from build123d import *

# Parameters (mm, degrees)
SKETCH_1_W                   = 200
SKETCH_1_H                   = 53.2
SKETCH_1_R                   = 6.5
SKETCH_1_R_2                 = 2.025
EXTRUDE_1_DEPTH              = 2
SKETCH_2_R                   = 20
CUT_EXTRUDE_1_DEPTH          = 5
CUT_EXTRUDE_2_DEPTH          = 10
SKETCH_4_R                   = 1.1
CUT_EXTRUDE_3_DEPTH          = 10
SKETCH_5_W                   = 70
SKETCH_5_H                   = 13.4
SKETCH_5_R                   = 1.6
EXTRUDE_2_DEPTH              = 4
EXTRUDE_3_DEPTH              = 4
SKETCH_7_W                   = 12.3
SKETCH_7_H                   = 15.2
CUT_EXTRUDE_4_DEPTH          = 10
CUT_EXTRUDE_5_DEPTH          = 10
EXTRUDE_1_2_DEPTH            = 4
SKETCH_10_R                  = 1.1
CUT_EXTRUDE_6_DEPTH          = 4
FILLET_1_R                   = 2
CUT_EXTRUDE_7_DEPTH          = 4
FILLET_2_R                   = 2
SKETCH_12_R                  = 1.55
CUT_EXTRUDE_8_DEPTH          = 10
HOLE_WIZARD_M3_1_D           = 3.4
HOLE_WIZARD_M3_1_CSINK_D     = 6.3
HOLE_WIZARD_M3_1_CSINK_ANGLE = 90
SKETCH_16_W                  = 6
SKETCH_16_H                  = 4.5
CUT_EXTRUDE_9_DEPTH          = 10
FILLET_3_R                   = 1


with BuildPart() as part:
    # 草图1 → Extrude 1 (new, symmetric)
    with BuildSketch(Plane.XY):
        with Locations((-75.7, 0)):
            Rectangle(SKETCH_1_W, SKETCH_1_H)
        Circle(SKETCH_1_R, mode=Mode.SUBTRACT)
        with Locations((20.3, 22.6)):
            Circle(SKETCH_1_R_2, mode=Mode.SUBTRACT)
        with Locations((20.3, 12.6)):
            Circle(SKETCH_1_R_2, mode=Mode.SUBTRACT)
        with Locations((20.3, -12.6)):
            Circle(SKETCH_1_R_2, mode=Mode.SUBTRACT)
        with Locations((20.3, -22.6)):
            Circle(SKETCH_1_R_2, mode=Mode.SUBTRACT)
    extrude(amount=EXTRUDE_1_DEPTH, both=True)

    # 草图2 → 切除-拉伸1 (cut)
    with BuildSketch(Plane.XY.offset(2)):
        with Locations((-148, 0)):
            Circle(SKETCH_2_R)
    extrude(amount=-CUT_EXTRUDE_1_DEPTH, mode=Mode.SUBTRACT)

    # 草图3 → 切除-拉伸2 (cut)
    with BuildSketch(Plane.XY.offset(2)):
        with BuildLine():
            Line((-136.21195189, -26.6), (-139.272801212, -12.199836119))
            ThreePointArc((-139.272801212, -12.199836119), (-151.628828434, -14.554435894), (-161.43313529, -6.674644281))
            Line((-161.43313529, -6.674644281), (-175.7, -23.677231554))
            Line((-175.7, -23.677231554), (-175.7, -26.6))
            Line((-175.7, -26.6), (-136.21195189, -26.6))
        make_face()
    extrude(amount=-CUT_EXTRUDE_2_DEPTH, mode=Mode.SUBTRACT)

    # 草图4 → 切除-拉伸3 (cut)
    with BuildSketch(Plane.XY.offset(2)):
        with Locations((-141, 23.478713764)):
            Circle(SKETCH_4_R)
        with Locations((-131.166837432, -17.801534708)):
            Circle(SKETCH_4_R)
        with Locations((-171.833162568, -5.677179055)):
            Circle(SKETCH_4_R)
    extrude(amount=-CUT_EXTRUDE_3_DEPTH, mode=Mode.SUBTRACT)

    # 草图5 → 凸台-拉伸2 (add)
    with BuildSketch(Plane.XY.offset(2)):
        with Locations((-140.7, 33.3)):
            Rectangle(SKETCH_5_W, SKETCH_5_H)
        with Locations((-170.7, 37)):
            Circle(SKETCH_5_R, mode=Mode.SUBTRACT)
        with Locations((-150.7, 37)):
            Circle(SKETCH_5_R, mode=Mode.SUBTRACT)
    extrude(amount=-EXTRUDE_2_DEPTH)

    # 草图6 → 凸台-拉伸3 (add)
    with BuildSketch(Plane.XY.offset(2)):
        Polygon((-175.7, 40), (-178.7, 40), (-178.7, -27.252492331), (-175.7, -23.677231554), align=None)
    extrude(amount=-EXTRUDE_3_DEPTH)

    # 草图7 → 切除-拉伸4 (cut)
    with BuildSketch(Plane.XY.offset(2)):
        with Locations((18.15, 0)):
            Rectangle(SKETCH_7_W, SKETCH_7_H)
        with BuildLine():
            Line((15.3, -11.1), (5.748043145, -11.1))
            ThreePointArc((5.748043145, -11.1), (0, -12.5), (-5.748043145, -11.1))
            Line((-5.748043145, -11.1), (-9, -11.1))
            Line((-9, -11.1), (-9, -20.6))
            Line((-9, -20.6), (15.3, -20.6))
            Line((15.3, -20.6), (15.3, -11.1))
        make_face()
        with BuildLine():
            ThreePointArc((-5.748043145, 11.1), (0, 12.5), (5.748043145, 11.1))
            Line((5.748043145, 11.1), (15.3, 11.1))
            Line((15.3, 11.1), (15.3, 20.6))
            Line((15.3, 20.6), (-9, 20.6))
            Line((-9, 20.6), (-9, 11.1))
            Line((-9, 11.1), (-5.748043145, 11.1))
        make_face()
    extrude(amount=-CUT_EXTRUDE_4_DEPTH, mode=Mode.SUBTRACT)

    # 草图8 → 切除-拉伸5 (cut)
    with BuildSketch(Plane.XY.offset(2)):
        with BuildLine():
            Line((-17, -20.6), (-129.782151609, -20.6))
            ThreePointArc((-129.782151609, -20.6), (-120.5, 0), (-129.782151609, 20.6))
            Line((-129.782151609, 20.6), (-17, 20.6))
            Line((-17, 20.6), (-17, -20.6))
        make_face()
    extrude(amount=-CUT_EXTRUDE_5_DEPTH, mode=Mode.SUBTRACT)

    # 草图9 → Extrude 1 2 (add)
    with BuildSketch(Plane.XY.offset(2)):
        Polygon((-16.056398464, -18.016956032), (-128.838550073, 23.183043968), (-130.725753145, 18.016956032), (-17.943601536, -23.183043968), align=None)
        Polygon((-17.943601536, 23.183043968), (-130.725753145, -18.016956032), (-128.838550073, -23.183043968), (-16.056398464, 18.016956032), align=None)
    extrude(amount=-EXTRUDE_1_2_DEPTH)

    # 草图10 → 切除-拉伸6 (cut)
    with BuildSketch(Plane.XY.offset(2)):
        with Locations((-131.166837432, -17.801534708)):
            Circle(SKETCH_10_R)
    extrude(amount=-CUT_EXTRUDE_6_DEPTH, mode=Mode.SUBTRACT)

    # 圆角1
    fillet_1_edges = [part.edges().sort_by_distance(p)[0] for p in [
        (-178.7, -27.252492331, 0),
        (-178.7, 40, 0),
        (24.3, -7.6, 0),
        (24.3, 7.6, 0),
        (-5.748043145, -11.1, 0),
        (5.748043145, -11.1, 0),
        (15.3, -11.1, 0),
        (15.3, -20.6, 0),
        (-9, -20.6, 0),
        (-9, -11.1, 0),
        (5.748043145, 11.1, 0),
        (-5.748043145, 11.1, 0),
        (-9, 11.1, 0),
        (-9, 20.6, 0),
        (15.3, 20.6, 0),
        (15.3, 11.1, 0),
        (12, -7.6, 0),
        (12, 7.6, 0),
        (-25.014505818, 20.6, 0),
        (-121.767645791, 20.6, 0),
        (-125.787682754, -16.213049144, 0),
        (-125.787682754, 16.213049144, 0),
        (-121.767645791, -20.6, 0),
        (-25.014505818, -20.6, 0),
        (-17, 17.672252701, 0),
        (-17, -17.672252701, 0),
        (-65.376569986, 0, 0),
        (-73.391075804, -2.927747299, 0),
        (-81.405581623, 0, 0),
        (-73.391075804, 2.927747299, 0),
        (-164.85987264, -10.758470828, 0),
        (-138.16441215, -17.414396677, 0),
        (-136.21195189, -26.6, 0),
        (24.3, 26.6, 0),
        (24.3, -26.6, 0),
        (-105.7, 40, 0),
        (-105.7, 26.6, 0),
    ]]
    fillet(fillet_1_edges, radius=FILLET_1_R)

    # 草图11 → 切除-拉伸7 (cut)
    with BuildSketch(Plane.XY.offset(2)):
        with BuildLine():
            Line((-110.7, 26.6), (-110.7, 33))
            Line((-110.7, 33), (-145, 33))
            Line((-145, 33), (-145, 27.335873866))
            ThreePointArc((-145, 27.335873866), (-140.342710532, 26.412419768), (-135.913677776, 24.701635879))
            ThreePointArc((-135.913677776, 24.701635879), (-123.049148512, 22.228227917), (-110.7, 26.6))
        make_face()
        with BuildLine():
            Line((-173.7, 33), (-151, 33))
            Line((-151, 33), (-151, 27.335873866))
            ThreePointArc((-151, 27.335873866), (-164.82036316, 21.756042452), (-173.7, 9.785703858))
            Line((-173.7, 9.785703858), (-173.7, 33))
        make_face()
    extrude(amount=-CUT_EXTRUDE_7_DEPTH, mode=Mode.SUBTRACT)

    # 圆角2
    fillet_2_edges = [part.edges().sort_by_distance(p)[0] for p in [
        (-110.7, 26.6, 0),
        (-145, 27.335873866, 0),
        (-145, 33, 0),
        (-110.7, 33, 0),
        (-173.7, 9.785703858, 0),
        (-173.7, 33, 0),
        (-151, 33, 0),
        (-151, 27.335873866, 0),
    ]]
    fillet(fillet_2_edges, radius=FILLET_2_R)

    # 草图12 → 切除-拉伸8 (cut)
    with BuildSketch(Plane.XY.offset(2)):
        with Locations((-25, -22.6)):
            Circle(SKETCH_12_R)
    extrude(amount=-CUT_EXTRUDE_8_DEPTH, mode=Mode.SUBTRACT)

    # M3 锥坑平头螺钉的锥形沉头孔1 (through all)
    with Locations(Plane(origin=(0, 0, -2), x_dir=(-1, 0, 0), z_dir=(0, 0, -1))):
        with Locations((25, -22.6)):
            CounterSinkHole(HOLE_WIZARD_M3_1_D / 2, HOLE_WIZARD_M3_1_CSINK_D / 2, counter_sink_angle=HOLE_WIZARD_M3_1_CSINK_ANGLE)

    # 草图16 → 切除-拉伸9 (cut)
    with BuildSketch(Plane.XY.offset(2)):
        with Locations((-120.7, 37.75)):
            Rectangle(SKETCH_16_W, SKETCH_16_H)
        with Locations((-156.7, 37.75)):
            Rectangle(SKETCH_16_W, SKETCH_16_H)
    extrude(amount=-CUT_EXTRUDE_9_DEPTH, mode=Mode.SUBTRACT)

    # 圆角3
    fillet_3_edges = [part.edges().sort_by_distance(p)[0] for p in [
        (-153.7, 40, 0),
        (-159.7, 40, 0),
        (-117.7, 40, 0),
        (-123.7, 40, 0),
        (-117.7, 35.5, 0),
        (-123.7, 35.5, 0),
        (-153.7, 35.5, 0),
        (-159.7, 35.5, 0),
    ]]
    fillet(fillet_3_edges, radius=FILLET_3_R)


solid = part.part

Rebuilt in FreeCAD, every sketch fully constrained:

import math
import FreeCAD as App
import Part
import Sketcher
Q = App.Units.Quantity


def edges_at(feature, points):
    """Names of the edges that pass closest to the given points."""
    edges = feature.Shape.Edges
    near = lambda p: min(range(len(edges)), key=lambda i: edges[i].distToShape(Part.Vertex(*p))[0])
    return sorted({f"Edge{near(p) + 1}" for p in points})


def add_polygon(sketch, points):
    """Adds a closed chain of lines whose ends are joined by coincident constraints."""
    first, n = sketch.GeometryCount, len(points)
    for a, b in zip(points, points[1:] + points[:1]):
        sketch.addGeometry(Part.LineSegment(App.Vector(*a, 0), App.Vector(*b, 0)), False)
    for i in range(n):
        sketch.addConstraint(Sketcher.Constraint("Coincident", first + i, 2, first + (i + 1) % n, 1))

doc = App.newDocument("Part")
body = doc.addObject("PartDesign::Body", "Body")

# Sketch on XY plane
sketch1 = body.newObject("Sketcher::SketchObject", "Sketch")
sketch1.AttachmentSupport = (doc.getObject("XY_Plane"), [""])
sketch1.MapMode = "FlatFace"
add_polygon(sketch1, [(-175.7, 26.6), (-175.7, -26.6), (24.3, -26.6), (24.3, 26.6)])  # lines 0-3
sketch1.addGeometry(Part.Circle(App.Vector(20.3, -22.6, 0), App.Vector(0, 0, 1), 2), False)  # 4
sketch1.addGeometry(Part.Circle(App.Vector(20.3, -12.6, 0), App.Vector(0, 0, 1), 2), False)  # 5
sketch1.addGeometry(Part.Circle(App.Vector(0, 0, 0), App.Vector(0, 0, 1), 6.5), False)  # 6
sketch1.addGeometry(Part.Circle(App.Vector(20.3, 12.6, 0), App.Vector(0, 0, 1), 2), False)  # 7
sketch1.addGeometry(Part.Circle(App.Vector(20.3, 22.6, 0), App.Vector(0, 0, 1), 2), False)  # 8
sketch1.addConstraint(Sketcher.Constraint("Vertical", 0))
sketch1.addConstraint(Sketcher.Constraint("Horizontal", 1))
sketch1.addConstraint(Sketcher.Constraint("Vertical", 2))
sketch1.addConstraint(Sketcher.Constraint("Horizontal", 3))
sketch1.addConstraint(Sketcher.Constraint("Coincident", 6, 3, -1, 1))
sketch1.addConstraint(Sketcher.Constraint("Equal", 4, 5))
sketch1.addConstraint(Sketcher.Constraint("Equal", 5, 7))
sketch1.addConstraint(Sketcher.Constraint("Equal", 7, 8))
sketch1.addConstraint(Sketcher.Constraint("Symmetric", 5, 3, 7, 3, -1))
sketch1.addConstraint(Sketcher.Constraint("Symmetric", 4, 3, 8, 3, -1))
sketch1.addConstraint(Sketcher.Constraint("Vertical", 4, 3, 5, 3))
sketch1.addConstraint(Sketcher.Constraint("Diameter", 6, 13.0))
sketch1.addConstraint(Sketcher.Constraint("Diameter", 4, 4.05))
sketch1.addConstraint(Sketcher.Constraint("DistanceX", 1, 1, 1, 2, 200.0))
sketch1.addConstraint(Sketcher.Constraint("DistanceY", 0, 2, 0, 1, 53.2))
sketch1.addConstraint(Sketcher.Constraint("DistanceY", 4, 3, 5, 3, 10.0))
sketch1.addConstraint(Sketcher.Constraint("DistanceX", 0, 2, 4, 3, 196.0))
sketch1.addConstraint(Sketcher.Constraint("DistanceY", 0, 2, 4, 3, 4.0))
sketch1.addConstraint(Sketcher.Constraint("DistanceY", 8, 3, 2, 2, 4.0))
sketch1.addConstraint(Sketcher.Constraint("DistanceX", -1, 1, 4, 3, 20.3))
pad1 = body.newObject("PartDesign::Pad", "Pad")
pad1.Profile = sketch1
pad1.Length = 4
pad1.Midplane = True

# Sketch on XY plane
sketch2 = body.newObject("Sketcher::SketchObject", "Sketch001")
sketch2.AttachmentSupport = (doc.getObject("XY_Plane"), [""])
sketch2.MapMode = "FlatFace"
sketch2.AttachmentOffset = App.Placement(App.Vector(0, 0, 2), App.Rotation())
sketch2.addGeometry(Part.Circle(App.Vector(-148, 0, 0), App.Vector(0, 0, 1), 20), False)
sketch2.addConstraint(Sketcher.Constraint("PointOnObject", 0, 3, -1))
sketch2.addConstraint(Sketcher.Constraint("Diameter", 0, 40.0))
sketch2.addConstraint(Sketcher.Constraint("DistanceX", 0, 3, -1, 1, 148.0))
pocket1 = body.newObject("PartDesign::Pocket", "Pocket")
pocket1.Profile = sketch2
pocket1.Length = 5

# Sketch on XY plane
sketch3 = body.newObject("Sketcher::SketchObject", "Sketch002")
sketch3.AttachmentSupport = (doc.getObject("XY_Plane"), [""])
sketch3.MapMode = "FlatFace"
sketch3.AttachmentOffset = App.Placement(App.Vector(0, 0, 2), App.Rotation())
sketch3.addGeometry(Part.LineSegment(App.Vector(-136.2, -26.6, 0), App.Vector(-139.3, -12.2, 0)), False)
sketch3.addGeometry(Part.ArcOfCircle(Part.Circle(App.Vector(-148, 0, 0), App.Vector(0, 0, 1), 15), math.radians(-154), math.radians(-54)), False)
sketch3.addGeometry(Part.LineSegment(App.Vector(-161.4, -6.7, 0), App.Vector(-175.7, -23.7, 0)), False)
sketch3.addGeometry(Part.LineSegment(App.Vector(-175.7, -23.7, 0), App.Vector(-175.7, -26.6, 0)), False)
sketch3.addGeometry(Part.LineSegment(App.Vector(-175.7, -26.6, 0), App.Vector(-136.2, -26.6, 0)), False)
sketch3.addConstraint(Sketcher.Constraint("Coincident", 0, 2, 1, 2))
sketch3.addConstraint(Sketcher.Constraint("Coincident", 1, 1, 2, 1))
sketch3.addConstraint(Sketcher.Constraint("Coincident", 2, 2, 3, 1))
sketch3.addConstraint(Sketcher.Constraint("Coincident", 3, 2, 4, 1))
sketch3.addConstraint(Sketcher.Constraint("Coincident", 4, 2, 0, 1))
sketch3.addConstraint(Sketcher.Constraint("Vertical", 3))
sketch3.addConstraint(Sketcher.Constraint("Horizontal", 4))
sketch3.addConstraint(Sketcher.Constraint("PointOnObject", 1, 3, -1))
sketch3.addConstraint(Sketcher.Constraint("Radius", 1, 15.0))
sketch3.addConstraint(Sketcher.Constraint("Angle", 0, Q("102 deg")))
sketch3.addConstraint(Sketcher.Constraint("Angle", 2, Q("-130 deg")))
sketch3.addConstraint(Sketcher.Constraint("DistanceX", 1, 3, -1, 1, 148.0))
sketch3.addConstraint(Sketcher.Constraint("DistanceX", 2, 2, -1, 1, 175.7))
sketch3.addConstraint(Sketcher.Constraint("DistanceY", 3, 2, -1, 1, 26.6))
sketch3.addConstraint(Sketcher.Constraint("Distance", 2, 22.195301))
sketch3.addConstraint(Sketcher.Constraint("DistanceX", 4, 1, 4, 2, 39.488048))
pocket2 = body.newObject("PartDesign::Pocket", "Pocket001")
pocket2.Profile = sketch3
pocket2.Length = 10

# Sketch on XY plane
sketch4 = body.newObject("Sketcher::SketchObject", "Sketch003")
sketch4.AttachmentSupport = (doc.getObject("XY_Plane"), [""])
sketch4.MapMode = "FlatFace"
sketch4.AttachmentOffset = App.Placement(App.Vector(0, 0, 2), App.Rotation())
sketch4.addGeometry(Part.Circle(App.Vector(-141, 23.5, 0), App.Vector(0, 0, 1), 1.1), False)
sketch4.addGeometry(Part.Circle(App.Vector(-131.2, -17.8, 0), App.Vector(0, 0, 1), 1.1), False)
sketch4.addGeometry(Part.Circle(App.Vector(-171.8, -5.7, 0), App.Vector(0, 0, 1), 1.1), False)
sketch4.addConstraint(Sketcher.Constraint("Equal", 0, 1))
sketch4.addConstraint(Sketcher.Constraint("Equal", 1, 2))
sketch4.addConstraint(Sketcher.Constraint("Diameter", 0, 2.2))
sketch4.addConstraint(Sketcher.Constraint("DistanceX", 0, 3, -1, 1, 141.0))
sketch4.addConstraint(Sketcher.Constraint("DistanceY", 2, 3, -1, 1, 5.677179))
sketch4.addConstraint(Sketcher.Constraint("DistanceY", 1, 3, 0, 3, 41.280248))
sketch4.addConstraint(Sketcher.Constraint("DistanceY", -1, 1, 0, 3, 23.478714))
sketch4.addConstraint(Sketcher.Constraint("DistanceX", 1, 3, -1, 1, 131.166837))
sketch4.addConstraint(Sketcher.Constraint("DistanceX", 2, 3, -1, 1, 171.833163))
pocket3 = body.newObject("PartDesign::Pocket", "Pocket002")
pocket3.Profile = sketch4
pocket3.Length = 10

# Sketch on XY plane
sketch5 = body.newObject("Sketcher::SketchObject", "Sketch004")
sketch5.AttachmentSupport = (doc.getObject("XY_Plane"), [""])
sketch5.MapMode = "FlatFace"
sketch5.AttachmentOffset = App.Placement(App.Vector(0, 0, 2), App.Rotation())
add_polygon(sketch5, [(-175.7, 40), (-175.7, 26.6), (-105.7, 26.6), (-105.7, 40)])  # lines 0-3
sketch5.addGeometry(Part.Circle(App.Vector(-170.7, 37, 0), App.Vector(0, 0, 1), 1.6), False)  # 4
sketch5.addGeometry(Part.Circle(App.Vector(-150.7, 37, 0), App.Vector(0, 0, 1), 1.6), False)  # 5
sketch5.addConstraint(Sketcher.Constraint("Vertical", 0))
sketch5.addConstraint(Sketcher.Constraint("Horizontal", 1))
sketch5.addConstraint(Sketcher.Constraint("Vertical", 2))
sketch5.addConstraint(Sketcher.Constraint("Horizontal", 3))
sketch5.addConstraint(Sketcher.Constraint("Equal", 4, 5))
sketch5.addConstraint(Sketcher.Constraint("Horizontal", 4, 3, 5, 3))
sketch5.addConstraint(Sketcher.Constraint("Diameter", 4, 3.2))
sketch5.addConstraint(Sketcher.Constraint("DistanceX", 1, 1, 1, 2, 70.0))
sketch5.addConstraint(Sketcher.Constraint("DistanceY", 0, 2, 0, 1, 13.4))
sketch5.addConstraint(Sketcher.Constraint("DistanceY", -1, 1, 4, 3, 37.0))
sketch5.addConstraint(Sketcher.Constraint("DistanceY", -1, 1, 2, 2, 40.0))
sketch5.addConstraint(Sketcher.Constraint("DistanceX", 4, 3, 5, 3, 20.0))
sketch5.addConstraint(Sketcher.Constraint("DistanceX", 0, 2, 4, 3, 5.0))
sketch5.addConstraint(Sketcher.Constraint("DistanceX", 4, 3, -1, 1, 170.7))
pad2 = body.newObject("PartDesign::Pad", "Pad001")
pad2.Profile = sketch5
pad2.Length = 4
pad2.Reversed = True

# Sketch on XY plane
sketch6 = body.newObject("Sketcher::SketchObject", "Sketch005")
sketch6.AttachmentSupport = (doc.getObject("XY_Plane"), [""])
sketch6.MapMode = "FlatFace"
sketch6.AttachmentOffset = App.Placement(App.Vector(0, 0, 2), App.Rotation())
add_polygon(sketch6, [(-175.7, 40), (-178.7, 40), (-178.7, -27.3), (-175.7, -23.7)])  # lines 0-3
sketch6.addConstraint(Sketcher.Constraint("Horizontal", 0))
sketch6.addConstraint(Sketcher.Constraint("Vertical", 1))
sketch6.addConstraint(Sketcher.Constraint("Vertical", 3))
sketch6.addConstraint(Sketcher.Constraint("DistanceX", 0, 2, 0, 1, 3.0))
sketch6.addConstraint(Sketcher.Constraint("Angle", 2, Q("50 deg")))
sketch6.addConstraint(Sketcher.Constraint("DistanceY", -1, 1, 0, 2, 40.0))
sketch6.addConstraint(Sketcher.Constraint("DistanceX", 0, 2, -1, 1, 178.7))
sketch6.addConstraint(Sketcher.Constraint("DistanceY", 3, 1, 3, 2, 63.677232))
pad3 = body.newObject("PartDesign::Pad", "Pad002")
pad3.Profile = sketch6
pad3.Length = 4
pad3.Reversed = True

# Sketch on XY plane
sketch7 = body.newObject("Sketcher::SketchObject", "Sketch006")
sketch7.AttachmentSupport = (doc.getObject("XY_Plane"), [""])
sketch7.MapMode = "FlatFace"
sketch7.AttachmentOffset = App.Placement(App.Vector(0, 0, 2), App.Rotation())
add_polygon(sketch7, [(12, 7.6), (12, -7.6), (24.3, -7.6), (24.3, 7.6)])  # lines 0-3
sketch7.addGeometry(Part.LineSegment(App.Vector(15.3, -11.1, 0), App.Vector(5.7, -11.1, 0)), False)  # 4
sketch7.addGeometry(Part.ArcOfCircle(Part.Circle(App.Vector(0, 0, 0), App.Vector(0, 0, 1), 12.5), math.radians(-117), math.radians(-63)), False)  # 5
sketch7.addGeometry(Part.LineSegment(App.Vector(-5.7, -11.1, 0), App.Vector(-9, -11.1, 0)), False)  # 6
sketch7.addGeometry(Part.LineSegment(App.Vector(-9, -11.1, 0), App.Vector(-9, -20.6, 0)), False)  # 7
sketch7.addGeometry(Part.LineSegment(App.Vector(-9, -20.6, 0), App.Vector(15.3, -20.6, 0)), False)  # 8
sketch7.addGeometry(Part.LineSegment(App.Vector(15.3, -20.6, 0), App.Vector(15.3, -11.1, 0)), False)  # 9
sketch7.addGeometry(Part.ArcOfCircle(Part.Circle(App.Vector(0, 0, 0), App.Vector(0, 0, 1), 12.5), math.radians(63), math.radians(117)), False)  # 10
sketch7.addGeometry(Part.LineSegment(App.Vector(5.7, 11.1, 0), App.Vector(15.3, 11.1, 0)), False)  # 11
sketch7.addGeometry(Part.LineSegment(App.Vector(15.3, 11.1, 0), App.Vector(15.3, 20.6, 0)), False)  # 12
sketch7.addGeometry(Part.LineSegment(App.Vector(15.3, 20.6, 0), App.Vector(-9, 20.6, 0)), False)  # 13
sketch7.addGeometry(Part.LineSegment(App.Vector(-9, 20.6, 0), App.Vector(-9, 11.1, 0)), False)  # 14
sketch7.addGeometry(Part.LineSegment(App.Vector(-9, 11.1, 0), App.Vector(-5.7, 11.1, 0)), False)  # 15
sketch7.addConstraint(Sketcher.Constraint("Coincident", 4, 2, 5, 2))
sketch7.addConstraint(Sketcher.Constraint("Coincident", 5, 1, 6, 1))
sketch7.addConstraint(Sketcher.Constraint("Coincident", 6, 2, 7, 1))
sketch7.addConstraint(Sketcher.Constraint("Coincident", 7, 2, 8, 1))
sketch7.addConstraint(Sketcher.Constraint("Coincident", 8, 2, 9, 1))
sketch7.addConstraint(Sketcher.Constraint("Coincident", 9, 2, 4, 1))
sketch7.addConstraint(Sketcher.Constraint("Coincident", 10, 1, 11, 1))
sketch7.addConstraint(Sketcher.Constraint("Coincident", 11, 2, 12, 1))
sketch7.addConstraint(Sketcher.Constraint("Coincident", 12, 2, 13, 1))
sketch7.addConstraint(Sketcher.Constraint("Coincident", 13, 2, 14, 1))
sketch7.addConstraint(Sketcher.Constraint("Coincident", 14, 2, 15, 1))
sketch7.addConstraint(Sketcher.Constraint("Coincident", 15, 2, 10, 2))
sketch7.addConstraint(Sketcher.Constraint("Vertical", 0))
sketch7.addConstraint(Sketcher.Constraint("Horizontal", 1))
sketch7.addConstraint(Sketcher.Constraint("Vertical", 2))
sketch7.addConstraint(Sketcher.Constraint("Horizontal", 3))
sketch7.addConstraint(Sketcher.Constraint("Horizontal", 4))
sketch7.addConstraint(Sketcher.Constraint("Horizontal", 6))
sketch7.addConstraint(Sketcher.Constraint("Vertical", 7))
sketch7.addConstraint(Sketcher.Constraint("Horizontal", 8))
sketch7.addConstraint(Sketcher.Constraint("Vertical", 9))
sketch7.addConstraint(Sketcher.Constraint("Horizontal", 11))
sketch7.addConstraint(Sketcher.Constraint("Vertical", 12))
sketch7.addConstraint(Sketcher.Constraint("Horizontal", 13))
sketch7.addConstraint(Sketcher.Constraint("Vertical", 14))
sketch7.addConstraint(Sketcher.Constraint("Horizontal", 15))
sketch7.addConstraint(Sketcher.Constraint("Coincident", 5, 3, -1, 1))
sketch7.addConstraint(Sketcher.Constraint("Coincident", 10, 3, -1, 1))
sketch7.addConstraint(Sketcher.Constraint("Equal", 5, 10))
sketch7.addConstraint(Sketcher.Constraint("Symmetric", 9, 2, 11, 2, -1))
sketch7.addConstraint(Sketcher.Constraint("Symmetric", 7, 2, 13, 2, -1))
sketch7.addConstraint(Sketcher.Constraint("Horizontal", 4, 2, 5, 1))
sketch7.addConstraint(Sketcher.Constraint("Horizontal", 11, 2, 14, 2))
sketch7.addConstraint(Sketcher.Constraint("Radius", 5, 12.5))
sketch7.addConstraint(Sketcher.Constraint("DistanceX", 1, 1, 1, 2, 12.3))
sketch7.addConstraint(Sketcher.Constraint("DistanceX", 8, 1, 8, 2, 24.3))
sketch7.addConstraint(Sketcher.Constraint("DistanceY", 0, 2, 0, 1, 15.2))
sketch7.addConstraint(Sketcher.Constraint("DistanceY", 7, 2, 7, 1, 9.5))
sketch7.addConstraint(Sketcher.Constraint("DistanceX", -1, 1, 0, 2, 12.0))
sketch7.addConstraint(Sketcher.Constraint("DistanceX", 6, 2, -1, 1, 9.0))
sketch7.addConstraint(Sketcher.Constraint("DistanceY", 8, 2, 0, 2, 13.0))
sketch7.addConstraint(Sketcher.Constraint("DistanceY", 3, 2, 12, 2, 13.0))
pocket4 = body.newObject("PartDesign::Pocket", "Pocket003")
pocket4.Profile = sketch7
pocket4.Length = 10

# Sketch on XY plane
sketch8 = body.newObject("Sketcher::SketchObject", "Sketch007")
sketch8.AttachmentSupport = (doc.getObject("XY_Plane"), [""])
sketch8.MapMode = "FlatFace"
sketch8.AttachmentOffset = App.Placement(App.Vector(0, 0, 2), App.Rotation())
sketch8.addGeometry(Part.LineSegment(App.Vector(-130, -21, 0), App.Vector(-17, -21, 0)), False)
sketch8.addGeometry(Part.LineSegment(App.Vector(-17, -21, 0), App.Vector(-17, 21, 0)), False)
sketch8.addGeometry(Part.LineSegment(App.Vector(-17, 21, 0), App.Vector(-130, 21, 0)), False)
sketch8.addGeometry(Part.ArcOfCircle(Part.Circle(App.Vector(-148, 0, 0), App.Vector(0, 0, 1), 28), math.radians(-49), math.radians(49)), False)
sketch8.addConstraint(Sketcher.Constraint("Coincident", 0, 2, 1, 1))
sketch8.addConstraint(Sketcher.Constraint("Coincident", 1, 2, 2, 1))
sketch8.addConstraint(Sketcher.Constraint("Coincident", 2, 2, 3, 2))
sketch8.addConstraint(Sketcher.Constraint("Coincident", 3, 1, 0, 1))
sketch8.addConstraint(Sketcher.Constraint("Horizontal", 0))
sketch8.addConstraint(Sketcher.Constraint("Vertical", 1))
sketch8.addConstraint(Sketcher.Constraint("Horizontal", 2))
sketch8.addConstraint(Sketcher.Constraint("Symmetric", 2, 2, 3, 1, -1))
sketch8.addConstraint(Sketcher.Constraint("Radius", 3, 27.5))
sketch8.addConstraint(Sketcher.Constraint("DistanceY", 1, 1, 1, 2, 41.2))
sketch8.addConstraint(Sketcher.Constraint("DistanceX", 3, 3, -1, 1, 148.0))
sketch8.addConstraint(Sketcher.Constraint("DistanceX", 0, 2, -1, 1, 17.0))
pocket5 = body.newObject("PartDesign::Pocket", "Pocket004")
pocket5.Profile = sketch8
pocket5.Length = 10

# Sketch on XY plane
sketch9 = body.newObject("Sketcher::SketchObject", "Sketch008")
sketch9.AttachmentSupport = (doc.getObject("XY_Plane"), [""])
sketch9.MapMode = "FlatFace"
sketch9.AttachmentOffset = App.Placement(App.Vector(0, 0, 2), App.Rotation())
add_polygon(sketch9, [(-18, -23), (-16, -18), (-65, 0), (-16, 18), (-18, 23), (-73, 3), (-129, 23), (-131, 18), (-81, 0), (-131, -18), (-129, -23), (-73, -3)])  # lines 0-11
sketch9.addConstraint(Sketcher.Constraint("Symmetric", 0, 2, 2, 2, -1))
sketch9.addConstraint(Sketcher.Constraint("Symmetric", 6, 2, 8, 2, -1))
sketch9.addConstraint(Sketcher.Constraint("Symmetric", 5, 2, 9, 2, -1))
sketch9.addConstraint(Sketcher.Constraint("Symmetric", 4, 2, 10, 2, -1))
sketch9.addConstraint(Sketcher.Constraint("Symmetric", 3, 2, 11, 2, -1))
sketch9.addConstraint(Sketcher.Constraint("PointOnObject", 1, 2, -1))
sketch9.addConstraint(Sketcher.Constraint("PointOnObject", 7, 2, -1))
sketch9.addConstraint(Sketcher.Constraint("Perpendicular", 0, 1))
sketch9.addConstraint(Sketcher.Constraint("Perpendicular", 3, 4))
sketch9.addConstraint(Sketcher.Constraint("Parallel", 1, 5))
sketch9.addConstraint(Sketcher.Constraint("Perpendicular", 5, 6))
sketch9.addConstraint(Sketcher.Constraint("Perpendicular", 6, 7))
sketch9.addConstraint(Sketcher.Constraint("Horizontal", 3, 2, 5, 2))
sketch9.addConstraint(Sketcher.Constraint("Horizontal", 2, 2, 6, 2))
sketch9.addConstraint(Sketcher.Constraint("Distance", 0, 5.5))
sketch9.addConstraint(Sketcher.Constraint("DistanceY", 0, 2, 3, 2, 41.2))
sketch9.addConstraint(Sketcher.Constraint("Distance", 1, 52.508))
sketch9.addConstraint(Sketcher.Constraint("DistanceX", 0, 2, -1, 1, 16.056398))
sketch9.addConstraint(Sketcher.Constraint("DistanceX", 5, 2, -1, 1, 128.83855))
pad4 = body.newObject("PartDesign::Pad", "Pad003")
pad4.Profile = sketch9
pad4.Length = 4
pad4.Reversed = True

# Sketch on XY plane
sketch10 = body.newObject("Sketcher::SketchObject", "Sketch009")
sketch10.AttachmentSupport = (doc.getObject("XY_Plane"), [""])
sketch10.MapMode = "FlatFace"
sketch10.AttachmentOffset = App.Placement(App.Vector(0, 0, 2), App.Rotation())
sketch10.addGeometry(Part.Circle(App.Vector(-131.2, -17.8, 0), App.Vector(0, 0, 1), 1.1), False)
sketch10.addConstraint(Sketcher.Constraint("Diameter", 0, 2.2))
sketch10.addConstraint(Sketcher.Constraint("DistanceX", 0, 3, -1, 1, 131.166837))
sketch10.addConstraint(Sketcher.Constraint("DistanceY", 0, 3, -1, 1, 17.801535))
pocket6 = body.newObject("PartDesign::Pocket", "Pocket005")
pocket6.Profile = sketch10
pocket6.Length = 4
doc.recompute()

fillet = body.newObject("PartDesign::Fillet", "Fillet")
fillet.Base = (pocket6, edges_at(pocket6, [
    (-178.7, -27.252, 0),
    (-178.7, 40, 0),
    (24.3, -7.6, 0),
    (24.3, 7.6, 0),
    (-5.748, -11.1, 0),
    (5.748, -11.1, 0),
    (15.3, -11.1, 0),
    (15.3, -20.6, 0),
    (-9, -20.6, 0),
    (-9, -11.1, 0),
    (5.748, 11.1, 0),
    (-5.748, 11.1, 0),
    (-9, 11.1, 0),
    (-9, 20.6, 0),
    (15.3, 20.6, 0),
    (15.3, 11.1, 0),
    (12, -7.6, 0),
    (12, 7.6, 0),
    (-25.015, 20.6, 0),
    (-121.768, 20.6, 0),
    (-125.788, -16.213, 0),
    (-125.788, 16.213, 0),
    (-121.768, -20.6, 0),
    (-25.015, -20.6, 0),
    (-17, 17.672, 0),
    (-17, -17.672, 0),
    (-65.377, 0, 0),
    (-73.391, -2.928, 0),
    (-81.406, 0, 0),
    (-73.391, 2.928, 0),
    (-164.86, -10.758, 0),
    (-138.164, -17.414, 0),
    (-136.212, -26.6, 0),
    (24.3, 26.6, 0),
    (24.3, -26.6, 0),
    (-105.7, 40, 0),
    (-105.7, 26.6, 0),
]))
fillet.Radius = 2

# Sketch on XY plane
sketch11 = body.newObject("Sketcher::SketchObject", "Sketch010")
sketch11.AttachmentSupport = (doc.getObject("XY_Plane"), [""])
sketch11.MapMode = "FlatFace"
sketch11.AttachmentOffset = App.Placement(App.Vector(0, 0, 2), App.Rotation())
sketch11.addGeometry(Part.LineSegment(App.Vector(-111, 27, 0), App.Vector(-111, 33, 0)), False)
sketch11.addGeometry(Part.LineSegment(App.Vector(-111, 33, 0), App.Vector(-145, 33, 0)), False)
sketch11.addGeometry(Part.LineSegment(App.Vector(-145, 33, 0), App.Vector(-145, 27, 0)), False)
sketch11.addGeometry(Part.ArcOfCircle(Part.Circle(App.Vector(-148, 0, 0), App.Vector(0, 0, 1), 28), math.radians(63.93), math.radians(83.74)), False)
sketch11.addGeometry(Part.ArcOfCircle(Part.Circle(App.Vector(-125, 47, 0), App.Vector(0, 0, 1), 25), math.radians(-116), math.radians(-55)), False)
sketch11.addGeometry(Part.LineSegment(App.Vector(-151, 33, 0), App.Vector(-174, 33, 0)), False)
sketch11.addGeometry(Part.LineSegment(App.Vector(-174, 33, 0), App.Vector(-174, 10, 0)), False)
sketch11.addGeometry(Part.ArcOfCircle(Part.Circle(App.Vector(-148, 0, 0), App.Vector(0, 0, 1), 28), math.radians(96), math.radians(159)), False)
sketch11.addGeometry(Part.LineSegment(App.Vector(-151, 27, 0), App.Vector(-151, 33, 0)), False)
sketch11.addConstraint(Sketcher.Constraint("Coincident", 0, 2, 1, 1))
sketch11.addConstraint(Sketcher.Constraint("Coincident", 1, 2, 2, 1))
sketch11.addConstraint(Sketcher.Constraint("Coincident", 2, 2, 3, 2))
sketch11.addConstraint(Sketcher.Constraint("Tangent", 3, 1, 4, 1))
sketch11.addConstraint(Sketcher.Constraint("Coincident", 4, 2, 0, 1))
sketch11.addConstraint(Sketcher.Constraint("Coincident", 5, 2, 6, 1))
sketch11.addConstraint(Sketcher.Constraint("Coincident", 6, 2, 7, 2))
sketch11.addConstraint(Sketcher.Constraint("Coincident", 7, 1, 8, 1))
sketch11.addConstraint(Sketcher.Constraint("Coincident", 8, 2, 5, 1))
sketch11.addConstraint(Sketcher.Constraint("Vertical", 0))
sketch11.addConstraint(Sketcher.Constraint("Horizontal", 1))
sketch11.addConstraint(Sketcher.Constraint("Vertical", 2))
sketch11.addConstraint(Sketcher.Constraint("Horizontal", 5))
sketch11.addConstraint(Sketcher.Constraint("Vertical", 6))
sketch11.addConstraint(Sketcher.Constraint("Vertical", 8))
sketch11.addConstraint(Sketcher.Constraint("Coincident", 7, 3, 3, 3))
sketch11.addConstraint(Sketcher.Constraint("Equal", 3, 7))
sketch11.addConstraint(Sketcher.Constraint("PointOnObject", 3, 3, -1))
sketch11.addConstraint(Sketcher.Constraint("Horizontal", 1, 2, 5, 2))
sketch11.addConstraint(Sketcher.Constraint("Horizontal", 2, 2, 7, 1))
sketch11.addConstraint(Sketcher.Constraint("Radius", 4, 25.0))
sketch11.addConstraint(Sketcher.Constraint("Radius", 3, 27.5))
sketch11.addConstraint(Sketcher.Constraint("DistanceX", 1, 2, 1, 1, 34.3))
sketch11.addConstraint(Sketcher.Constraint("DistanceX", 5, 2, 5, 1, 22.7))
sketch11.addConstraint(Sketcher.Constraint("DistanceY", 0, 1, 0, 2, 6.4))
sketch11.addConstraint(Sketcher.Constraint("DistanceX", 3, 3, -1, 1, 148.0))
sketch11.addConstraint(Sketcher.Constraint("DistanceY", -1, 1, 0, 2, 33.0))
sketch11.addConstraint(Sketcher.Constraint("DistanceX", 1, 2, -1, 1, 145.0))
pocket7 = body.newObject("PartDesign::Pocket", "Pocket006")
pocket7.Profile = sketch11
pocket7.Length = 4
doc.recompute()

fillet2 = body.newObject("PartDesign::Fillet", "Fillet001")
fillet2.Base = (pocket7, edges_at(pocket7, [
    (-110.7, 26.6, 0),
    (-145, 27.336, 0),
    (-145, 33, 0),
    (-110.7, 33, 0),
    (-173.7, 9.786, 0),
    (-173.7, 33, 0),
    (-151, 33, 0),
    (-151, 27.336, 0),
]))
fillet2.Radius = 2

# Sketch on XY plane
sketch12 = body.newObject("Sketcher::SketchObject", "Sketch011")
sketch12.AttachmentSupport = (doc.getObject("XY_Plane"), [""])
sketch12.MapMode = "FlatFace"
sketch12.AttachmentOffset = App.Placement(App.Vector(0, 0, 2), App.Rotation())
sketch12.addGeometry(Part.Circle(App.Vector(-25, -22.6, 0), App.Vector(0, 0, 1), 1.6), False)
sketch12.addConstraint(Sketcher.Constraint("Diameter", 0, 3.1))
sketch12.addConstraint(Sketcher.Constraint("DistanceX", 0, 3, -1, 1, 25.0))
sketch12.addConstraint(Sketcher.Constraint("DistanceY", 0, 3, -1, 1, 22.6))
pocket8 = body.newObject("PartDesign::Pocket", "Pocket007")
pocket8.Profile = sketch12
pocket8.Length = 10

# Sketch on XY plane
sketch13 = body.newObject("Sketcher::SketchObject", "Sketch012")
sketch13.AttachmentSupport = (doc.getObject("XY_Plane"), [""])
sketch13.MapMode = "FlatFace"
sketch13.AttachmentOffset = App.Placement(App.Vector(0, 0, -2), App.Rotation())
sketch13.addGeometry(Part.Circle(App.Vector(-25, -22.6, 0), App.Vector(0, 0, 1), 1.7), False)
sketch13.addConstraint(Sketcher.Constraint("Diameter", 0, 3.4))
sketch13.addConstraint(Sketcher.Constraint("DistanceX", 0, 3, -1, 1, 25.0))
sketch13.addConstraint(Sketcher.Constraint("DistanceY", 0, 3, -1, 1, 22.6))
doc.recompute()
hole = body.newObject("PartDesign::Hole", "Hole")
hole.Profile = sketch13
hole.ThreadType = "None"
hole.Diameter = 3.4
hole.DepthType = "ThroughAll"
hole.HoleCutType = "Countersink"
hole.HoleCutDiameter = 6.3
hole.HoleCutCountersinkAngle = 90
hole.Reversed = True

# Sketch on XY plane
sketch14 = body.newObject("Sketcher::SketchObject", "Sketch013")
sketch14.AttachmentSupport = (doc.getObject("XY_Plane"), [""])
sketch14.MapMode = "FlatFace"
sketch14.AttachmentOffset = App.Placement(App.Vector(0, 0, 2), App.Rotation())
add_polygon(sketch14, [(-123.7, 40), (-123.7, 35.5), (-117.7, 35.5), (-117.7, 40)])  # lines 0-3
add_polygon(sketch14, [(-159.7, 40), (-159.7, 35.5), (-153.7, 35.5), (-153.7, 40)])  # lines 4-7
sketch14.addConstraint(Sketcher.Constraint("Vertical", 0))
sketch14.addConstraint(Sketcher.Constraint("Horizontal", 1))
sketch14.addConstraint(Sketcher.Constraint("Vertical", 2))
sketch14.addConstraint(Sketcher.Constraint("Horizontal", 3))
sketch14.addConstraint(Sketcher.Constraint("Vertical", 4))
sketch14.addConstraint(Sketcher.Constraint("Horizontal", 5))
sketch14.addConstraint(Sketcher.Constraint("Vertical", 6))
sketch14.addConstraint(Sketcher.Constraint("Horizontal", 7))
sketch14.addConstraint(Sketcher.Constraint("Horizontal", 1, 2, 4, 2))
sketch14.addConstraint(Sketcher.Constraint("Horizontal", 3, 2, 6, 2))
sketch14.addConstraint(Sketcher.Constraint("Equal", 3, 5))
sketch14.addConstraint(Sketcher.Constraint("DistanceX", 1, 1, 1, 2, 6.0))
sketch14.addConstraint(Sketcher.Constraint("DistanceY", 0, 2, 0, 1, 4.5))
sketch14.addConstraint(Sketcher.Constraint("DistanceY", -1, 1, 2, 2, 40.0))
sketch14.addConstraint(Sketcher.Constraint("DistanceX", 4, 2, 0, 2, 36.0))
sketch14.addConstraint(Sketcher.Constraint("DistanceX", 0, 2, -1, 1, 123.7))
pocket9 = body.newObject("PartDesign::Pocket", "Pocket008")
pocket9.Profile = sketch14
pocket9.Length = 10
doc.recompute()

fillet3 = body.newObject("PartDesign::Fillet", "Fillet002")
fillet3.Base = (pocket9, edges_at(pocket9, [
    (-153.7, 40, 0),
    (-159.7, 40, 0),
    (-117.7, 40, 0),
    (-123.7, 40, 0),
    (-117.7, 35.5, 0),
    (-123.7, 35.5, 0),
    (-153.7, 35.5, 0),
    (-159.7, 35.5, 0),
]))
fillet3.Radius = 1

doc.recompute()
